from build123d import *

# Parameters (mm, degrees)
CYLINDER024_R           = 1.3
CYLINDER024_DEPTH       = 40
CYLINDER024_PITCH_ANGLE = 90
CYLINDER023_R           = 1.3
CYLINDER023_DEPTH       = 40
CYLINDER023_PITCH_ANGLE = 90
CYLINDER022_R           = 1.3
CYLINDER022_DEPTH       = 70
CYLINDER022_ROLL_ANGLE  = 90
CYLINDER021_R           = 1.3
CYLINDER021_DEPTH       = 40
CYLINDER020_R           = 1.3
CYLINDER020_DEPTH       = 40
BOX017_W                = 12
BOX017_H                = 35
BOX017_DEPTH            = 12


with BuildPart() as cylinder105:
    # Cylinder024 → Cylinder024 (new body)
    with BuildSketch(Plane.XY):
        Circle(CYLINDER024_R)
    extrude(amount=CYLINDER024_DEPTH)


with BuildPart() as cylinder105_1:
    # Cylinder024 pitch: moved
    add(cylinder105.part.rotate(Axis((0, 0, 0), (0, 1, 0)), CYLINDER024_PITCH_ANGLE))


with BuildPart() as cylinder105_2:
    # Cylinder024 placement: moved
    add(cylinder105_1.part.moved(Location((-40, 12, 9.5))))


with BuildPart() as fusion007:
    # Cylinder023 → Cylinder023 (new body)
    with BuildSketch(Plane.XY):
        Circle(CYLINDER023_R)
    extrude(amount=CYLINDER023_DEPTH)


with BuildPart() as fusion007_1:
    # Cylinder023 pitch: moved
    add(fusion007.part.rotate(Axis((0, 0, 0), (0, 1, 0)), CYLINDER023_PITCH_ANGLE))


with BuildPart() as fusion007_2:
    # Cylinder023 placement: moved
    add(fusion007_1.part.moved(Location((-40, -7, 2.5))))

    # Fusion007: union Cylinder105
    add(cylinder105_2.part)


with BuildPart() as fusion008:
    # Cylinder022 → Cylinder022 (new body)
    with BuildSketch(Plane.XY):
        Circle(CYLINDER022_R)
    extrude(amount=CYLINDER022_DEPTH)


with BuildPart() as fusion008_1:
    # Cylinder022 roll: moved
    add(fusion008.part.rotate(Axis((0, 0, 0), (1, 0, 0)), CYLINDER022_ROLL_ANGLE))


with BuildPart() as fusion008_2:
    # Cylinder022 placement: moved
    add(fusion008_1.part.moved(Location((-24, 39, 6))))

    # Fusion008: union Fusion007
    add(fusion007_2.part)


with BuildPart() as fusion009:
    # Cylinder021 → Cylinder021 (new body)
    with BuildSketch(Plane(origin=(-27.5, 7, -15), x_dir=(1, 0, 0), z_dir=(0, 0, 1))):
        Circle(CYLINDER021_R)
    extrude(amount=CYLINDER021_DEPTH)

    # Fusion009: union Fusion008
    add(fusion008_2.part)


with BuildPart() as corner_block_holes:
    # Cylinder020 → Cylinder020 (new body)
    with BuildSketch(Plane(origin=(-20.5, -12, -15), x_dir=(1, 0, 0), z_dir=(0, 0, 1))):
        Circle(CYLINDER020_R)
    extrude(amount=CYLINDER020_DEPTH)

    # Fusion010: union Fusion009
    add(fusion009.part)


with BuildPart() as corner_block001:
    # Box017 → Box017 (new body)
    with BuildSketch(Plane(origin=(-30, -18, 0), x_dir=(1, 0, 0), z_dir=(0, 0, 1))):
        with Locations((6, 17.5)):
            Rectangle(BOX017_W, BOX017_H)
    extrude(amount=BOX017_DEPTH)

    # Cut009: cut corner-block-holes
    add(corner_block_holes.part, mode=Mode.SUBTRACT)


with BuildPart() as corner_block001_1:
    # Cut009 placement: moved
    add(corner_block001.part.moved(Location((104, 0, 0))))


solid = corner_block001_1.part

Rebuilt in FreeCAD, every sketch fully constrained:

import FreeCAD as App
import Part
import Sketcher

V = App.Vector
Q = App.Units.Quantity


def add_polygon(sketch, points):
    """Adds a closed chain of lines whose ends are joined by coincident constraints."""
    first, n = sketch.GeometryCount, len(points)
    for a, b in zip(points, points[1:] + points[:1]):
        sketch.addGeometry(Part.LineSegment(App.Vector(*a, 0), App.Vector(*b, 0)), False)
    for i in range(n):
        sketch.addConstraint(Sketcher.Constraint("Coincident", first + i, 2, first + (i + 1) % n, 1))

doc = App.newDocument("Part")
body = doc.addObject("PartDesign::Body", "Body")

sketch1 = doc.addObject("Sketcher::SketchObject", "Sketch")
body.addObject(sketch1)
sketch1.AttachmentSupport = (doc.XY_Plane, [""])
sketch1.MapMode = "FlatFace"
sketch1.addGeometry(Part.Circle(V(0, 0, 0), V(0, 0, 1), 1.3), False)
sketch1.addConstraint(Sketcher.Constraint("Coincident", 0, 3, -1, 1))
sketch1.addConstraint(Sketcher.Constraint("Diameter", 0, Q("2.6 mm")))
pad1 = doc.addObject("PartDesign::Pad", "Pad")
body.addObject(pad1)
pad1.Profile = sketch1
pad1.Length = 40
body2 = doc.addObject("PartDesign::Body", "Body001")
doc.recompute()

body.Placement = App.Placement(V(0, 0, 0), App.Rotation(V(0, 1, 0), 90))
boolean = doc.addObject("PartDesign::Boolean", "Boolean")
body2.addObject(boolean)
boolean.Type = "Fuse"
boolean.addObjects([body])
body3 = doc.addObject("PartDesign::Body", "Body002")
doc.recompute()

body2.Placement = App.Placement(V(-40, 12, 9.5), App.Rotation(V(0, 0, 1), 0))
boolean2 = doc.addObject("PartDesign::Boolean", "Boolean001")
body3.addObject(boolean2)
boolean2.Type = "Fuse"
boolean2.addObjects([body2])
body4 = doc.addObject("PartDesign::Body", "Body003")

sketch2 = doc.addObject("Sketcher::SketchObject", "Sketch001")
body4.addObject(sketch2)
sketch2.AttachmentSupport = (doc.getObject("XY_Plane003"), [""])
sketch2.MapMode = "FlatFace"
sketch2.addGeometry(Part.Circle(V(0, 0, 0), V(0, 0, 1), 1.3), False)
sketch2.addConstraint(Sketcher.Constraint("Coincident", 0, 3, -1, 1))
sketch2.addConstraint(Sketcher.Constraint("Diameter", 0, Q("2.6 mm")))
pad2 = doc.addObject("PartDesign::Pad", "Pad001")
body4.addObject(pad2)
pad2.Profile = sketch2
pad2.Length = 40
body5 = doc.addObject("PartDesign::Body", "Body004")
doc.recompute()

body4.Placement = App.Placement(V(0, 0, 0), App.Rotation(V(0, 1, 0), 90))
boolean3 = doc.addObject("PartDesign::Boolean", "Boolean002")
body5.addObject(boolean3)
boolean3.Type = "Fuse"
boolean3.addObjects([body4])
body6 = doc.addObject("PartDesign::Body", "Body005")
body6.AllowCompound = True
doc.recompute()

body5.Placement = App.Placement(V(-40, -7, 2.5), App.Rotation(V(0, 0, 1), 0))
boolean4 = doc.addObject("PartDesign::Boolean", "Boolean003")
body6.addObject(boolean4)
boolean4.Type = "Fuse"
boolean4.addObjects([body5])
doc.recompute()

boolean5 = doc.addObject("PartDesign::Boolean", "Boolean004")
body6.addObject(boolean5)
boolean5.Type = "Fuse"
boolean5.addObjects([body3])
body7 = doc.addObject("PartDesign::Body", "Body006")

sketch3 = doc.addObject("Sketcher::SketchObject", "Sketch002")
body7.addObject(sketch3)
sketch3.AttachmentSupport = (doc.getObject("XY_Plane006"), [""])
sketch3.MapMode = "FlatFace"
sketch3.addGeometry(Part.Circle(V(0, 0, 0), V(0, 0, 1), 1.3), False)
sketch3.addConstraint(Sketcher.Constraint("Coincident", 0, 3, -1, 1))
sketch3.addConstraint(Sketcher.Constraint("Diameter", 0, Q("2.6 mm")))
pad3 = doc.addObject("PartDesign::Pad", "Pad002")
body7.addObject(pad3)
pad3.Profile = sketch3
pad3.Length = 70
body8 = doc.addObject("PartDesign::Body", "Body007")
doc.recompute()

body7.Placement = App.Placement(V(0, 0, 0), App.Rotation(V(1, 0, 0), 90))
boolean6 = doc.addObject("PartDesign::Boolean", "Boolean005")
body8.addObject(boolean6)
boolean6.Type = "Fuse"
boolean6.addObjects([body7])
body9 = doc.addObject("PartDesign::Body", "Body008")
body9.AllowCompound = True
doc.recompute()

body8.Placement = App.Placement(V(-24, 39, 6), App.Rotation(V(0, 0, 1), 0))
boolean7 = doc.addObject("PartDesign::Boolean", "Boolean006")
body9.addObject(boolean7)
boolean7.Type = "Fuse"
boolean7.addObjects([body8])
doc.recompute()

boolean8 = doc.addObject("PartDesign::Boolean", "Boolean007")
body9.addObject(boolean8)
boolean8.Type = "Fuse"
boolean8.addObjects([body6])
body10 = doc.addObject("PartDesign::Body", "Body009")
body10.AllowCompound = True

sketch4 = doc.addObject("Sketcher::SketchObject", "Sketch003")
body10.addObject(sketch4)
sketch4.AttachmentSupport = (doc.getObject("XY_Plane009"), [""])
sketch4.MapMode = "FlatFace"
sketch4.AttachmentOffset = App.Placement(V(0, 0, -15), App.Rotation())
sketch4.addGeometry(Part.Circle(V(-27.5, 7, 0), V(0, 0, 1), 1.3), False)
sketch4.addConstraint(Sketcher.Constraint("Diameter", 0, Q("2.6 mm")))
sketch4.addConstraint(Sketcher.Constraint("DistanceY", -1, 1, 0, 3, Q("7 mm")))
sketch4.addConstraint(Sketcher.Constraint("DistanceX", 0, 3, -1, 1, Q("27.5 mm")))
pad4 = doc.addObject("PartDesign::Pad", "Pad003")
body10.addObject(pad4)
pad4.Profile = sketch4
pad4.Length = 40
doc.recompute()

boolean9 = doc.addObject("PartDesign::Boolean", "Boolean008")
body10.addObject(boolean9)
boolean9.Type = "Fuse"
boolean9.addObjects([body9])
body11 = doc.addObject("PartDesign::Body", "Body010")
body11.AllowCompound = True

sketch5 = doc.addObject("Sketcher::SketchObject", "Sketch004")
body11.addObject(sketch5)
sketch5.AttachmentSupport = (doc.getObject("XY_Plane010"), [""])
sketch5.MapMode = "FlatFace"
sketch5.AttachmentOffset = App.Placement(V(0, 0, -15), App.Rotation())
sketch5.addGeometry(Part.Circle(V(-20.5, -12, 0), V(0, 0, 1), 1.3), False)
sketch5.addConstraint(Sketcher.Constraint("Diameter", 0, Q("2.6 mm")))
sketch5.addConstraint(Sketcher.Constraint("DistanceY", 0, 3, -1, 1, Q("12 mm")))
sketch5.addConstraint(Sketcher.Constraint("DistanceX", 0, 3, -1, 1, Q("20.5 mm")))
pad5 = doc.addObject("PartDesign::Pad", "Pad004")
body11.addObject(pad5)
pad5.Profile = sketch5
pad5.Length = 40
doc.recompute()

boolean10 = doc.addObject("PartDesign::Boolean", "Boolean009")
body11.addObject(boolean10)
boolean10.Type = "Fuse"
boolean10.addObjects([body10])
body12 = doc.addObject("PartDesign::Body", "Body011")

sketch6 = doc.addObject("Sketcher::SketchObject", "Sketch005")
body12.addObject(sketch6)
sketch6.AttachmentSupport = (doc.getObject("XY_Plane011"), [""])
sketch6.MapMode = "FlatFace"
add_polygon(sketch6, [(-30, 17), (-30, -18), (-18, -18), (-18, 17)])
sketch6.addConstraint(Sketcher.Constraint("Vertical", 0))
sketch6.addConstraint(Sketcher.Constraint("Horizontal", 1))
sketch6.addConstraint(Sketcher.Constraint("Vertical", 2))
sketch6.addConstraint(Sketcher.Constraint("Horizontal", 3))
sketch6.addConstraint(Sketcher.Constraint("DistanceX", 1, 1, 1, 2, Q("12 mm")))
sketch6.addConstraint(Sketcher.Constraint("DistanceY", 0, 2, 0, 1, Q("35 mm")))
sketch6.addConstraint(Sketcher.Constraint("DistanceX", 0, 2, -1, 1, Q("30 mm")))
sketch6.addConstraint(Sketcher.Constraint("DistanceY", 0, 2, -1, 1, Q("18 mm")))
pad6 = doc.addObject("PartDesign::Pad", "Pad005")
body12.addObject(pad6)
pad6.Profile = sketch6
pad6.Length = 12
doc.recompute()

boolean11 = doc.addObject("PartDesign::Boolean", "Boolean010")
body12.addObject(boolean11)
boolean11.Type = "Cut"
boolean11.addObjects([body11])
body13 = doc.addObject("PartDesign::Body", "Body012")
doc.recompute()

body12.Placement = App.Placement(V(104, 0, 0), App.Rotation(V(0, 0, 1), 0))
boolean12 = doc.addObject("PartDesign::Boolean", "Boolean011")
body13.addObject(boolean12)
boolean12.Type = "Fuse"
boolean12.addObjects([body12])

doc.recompute()
